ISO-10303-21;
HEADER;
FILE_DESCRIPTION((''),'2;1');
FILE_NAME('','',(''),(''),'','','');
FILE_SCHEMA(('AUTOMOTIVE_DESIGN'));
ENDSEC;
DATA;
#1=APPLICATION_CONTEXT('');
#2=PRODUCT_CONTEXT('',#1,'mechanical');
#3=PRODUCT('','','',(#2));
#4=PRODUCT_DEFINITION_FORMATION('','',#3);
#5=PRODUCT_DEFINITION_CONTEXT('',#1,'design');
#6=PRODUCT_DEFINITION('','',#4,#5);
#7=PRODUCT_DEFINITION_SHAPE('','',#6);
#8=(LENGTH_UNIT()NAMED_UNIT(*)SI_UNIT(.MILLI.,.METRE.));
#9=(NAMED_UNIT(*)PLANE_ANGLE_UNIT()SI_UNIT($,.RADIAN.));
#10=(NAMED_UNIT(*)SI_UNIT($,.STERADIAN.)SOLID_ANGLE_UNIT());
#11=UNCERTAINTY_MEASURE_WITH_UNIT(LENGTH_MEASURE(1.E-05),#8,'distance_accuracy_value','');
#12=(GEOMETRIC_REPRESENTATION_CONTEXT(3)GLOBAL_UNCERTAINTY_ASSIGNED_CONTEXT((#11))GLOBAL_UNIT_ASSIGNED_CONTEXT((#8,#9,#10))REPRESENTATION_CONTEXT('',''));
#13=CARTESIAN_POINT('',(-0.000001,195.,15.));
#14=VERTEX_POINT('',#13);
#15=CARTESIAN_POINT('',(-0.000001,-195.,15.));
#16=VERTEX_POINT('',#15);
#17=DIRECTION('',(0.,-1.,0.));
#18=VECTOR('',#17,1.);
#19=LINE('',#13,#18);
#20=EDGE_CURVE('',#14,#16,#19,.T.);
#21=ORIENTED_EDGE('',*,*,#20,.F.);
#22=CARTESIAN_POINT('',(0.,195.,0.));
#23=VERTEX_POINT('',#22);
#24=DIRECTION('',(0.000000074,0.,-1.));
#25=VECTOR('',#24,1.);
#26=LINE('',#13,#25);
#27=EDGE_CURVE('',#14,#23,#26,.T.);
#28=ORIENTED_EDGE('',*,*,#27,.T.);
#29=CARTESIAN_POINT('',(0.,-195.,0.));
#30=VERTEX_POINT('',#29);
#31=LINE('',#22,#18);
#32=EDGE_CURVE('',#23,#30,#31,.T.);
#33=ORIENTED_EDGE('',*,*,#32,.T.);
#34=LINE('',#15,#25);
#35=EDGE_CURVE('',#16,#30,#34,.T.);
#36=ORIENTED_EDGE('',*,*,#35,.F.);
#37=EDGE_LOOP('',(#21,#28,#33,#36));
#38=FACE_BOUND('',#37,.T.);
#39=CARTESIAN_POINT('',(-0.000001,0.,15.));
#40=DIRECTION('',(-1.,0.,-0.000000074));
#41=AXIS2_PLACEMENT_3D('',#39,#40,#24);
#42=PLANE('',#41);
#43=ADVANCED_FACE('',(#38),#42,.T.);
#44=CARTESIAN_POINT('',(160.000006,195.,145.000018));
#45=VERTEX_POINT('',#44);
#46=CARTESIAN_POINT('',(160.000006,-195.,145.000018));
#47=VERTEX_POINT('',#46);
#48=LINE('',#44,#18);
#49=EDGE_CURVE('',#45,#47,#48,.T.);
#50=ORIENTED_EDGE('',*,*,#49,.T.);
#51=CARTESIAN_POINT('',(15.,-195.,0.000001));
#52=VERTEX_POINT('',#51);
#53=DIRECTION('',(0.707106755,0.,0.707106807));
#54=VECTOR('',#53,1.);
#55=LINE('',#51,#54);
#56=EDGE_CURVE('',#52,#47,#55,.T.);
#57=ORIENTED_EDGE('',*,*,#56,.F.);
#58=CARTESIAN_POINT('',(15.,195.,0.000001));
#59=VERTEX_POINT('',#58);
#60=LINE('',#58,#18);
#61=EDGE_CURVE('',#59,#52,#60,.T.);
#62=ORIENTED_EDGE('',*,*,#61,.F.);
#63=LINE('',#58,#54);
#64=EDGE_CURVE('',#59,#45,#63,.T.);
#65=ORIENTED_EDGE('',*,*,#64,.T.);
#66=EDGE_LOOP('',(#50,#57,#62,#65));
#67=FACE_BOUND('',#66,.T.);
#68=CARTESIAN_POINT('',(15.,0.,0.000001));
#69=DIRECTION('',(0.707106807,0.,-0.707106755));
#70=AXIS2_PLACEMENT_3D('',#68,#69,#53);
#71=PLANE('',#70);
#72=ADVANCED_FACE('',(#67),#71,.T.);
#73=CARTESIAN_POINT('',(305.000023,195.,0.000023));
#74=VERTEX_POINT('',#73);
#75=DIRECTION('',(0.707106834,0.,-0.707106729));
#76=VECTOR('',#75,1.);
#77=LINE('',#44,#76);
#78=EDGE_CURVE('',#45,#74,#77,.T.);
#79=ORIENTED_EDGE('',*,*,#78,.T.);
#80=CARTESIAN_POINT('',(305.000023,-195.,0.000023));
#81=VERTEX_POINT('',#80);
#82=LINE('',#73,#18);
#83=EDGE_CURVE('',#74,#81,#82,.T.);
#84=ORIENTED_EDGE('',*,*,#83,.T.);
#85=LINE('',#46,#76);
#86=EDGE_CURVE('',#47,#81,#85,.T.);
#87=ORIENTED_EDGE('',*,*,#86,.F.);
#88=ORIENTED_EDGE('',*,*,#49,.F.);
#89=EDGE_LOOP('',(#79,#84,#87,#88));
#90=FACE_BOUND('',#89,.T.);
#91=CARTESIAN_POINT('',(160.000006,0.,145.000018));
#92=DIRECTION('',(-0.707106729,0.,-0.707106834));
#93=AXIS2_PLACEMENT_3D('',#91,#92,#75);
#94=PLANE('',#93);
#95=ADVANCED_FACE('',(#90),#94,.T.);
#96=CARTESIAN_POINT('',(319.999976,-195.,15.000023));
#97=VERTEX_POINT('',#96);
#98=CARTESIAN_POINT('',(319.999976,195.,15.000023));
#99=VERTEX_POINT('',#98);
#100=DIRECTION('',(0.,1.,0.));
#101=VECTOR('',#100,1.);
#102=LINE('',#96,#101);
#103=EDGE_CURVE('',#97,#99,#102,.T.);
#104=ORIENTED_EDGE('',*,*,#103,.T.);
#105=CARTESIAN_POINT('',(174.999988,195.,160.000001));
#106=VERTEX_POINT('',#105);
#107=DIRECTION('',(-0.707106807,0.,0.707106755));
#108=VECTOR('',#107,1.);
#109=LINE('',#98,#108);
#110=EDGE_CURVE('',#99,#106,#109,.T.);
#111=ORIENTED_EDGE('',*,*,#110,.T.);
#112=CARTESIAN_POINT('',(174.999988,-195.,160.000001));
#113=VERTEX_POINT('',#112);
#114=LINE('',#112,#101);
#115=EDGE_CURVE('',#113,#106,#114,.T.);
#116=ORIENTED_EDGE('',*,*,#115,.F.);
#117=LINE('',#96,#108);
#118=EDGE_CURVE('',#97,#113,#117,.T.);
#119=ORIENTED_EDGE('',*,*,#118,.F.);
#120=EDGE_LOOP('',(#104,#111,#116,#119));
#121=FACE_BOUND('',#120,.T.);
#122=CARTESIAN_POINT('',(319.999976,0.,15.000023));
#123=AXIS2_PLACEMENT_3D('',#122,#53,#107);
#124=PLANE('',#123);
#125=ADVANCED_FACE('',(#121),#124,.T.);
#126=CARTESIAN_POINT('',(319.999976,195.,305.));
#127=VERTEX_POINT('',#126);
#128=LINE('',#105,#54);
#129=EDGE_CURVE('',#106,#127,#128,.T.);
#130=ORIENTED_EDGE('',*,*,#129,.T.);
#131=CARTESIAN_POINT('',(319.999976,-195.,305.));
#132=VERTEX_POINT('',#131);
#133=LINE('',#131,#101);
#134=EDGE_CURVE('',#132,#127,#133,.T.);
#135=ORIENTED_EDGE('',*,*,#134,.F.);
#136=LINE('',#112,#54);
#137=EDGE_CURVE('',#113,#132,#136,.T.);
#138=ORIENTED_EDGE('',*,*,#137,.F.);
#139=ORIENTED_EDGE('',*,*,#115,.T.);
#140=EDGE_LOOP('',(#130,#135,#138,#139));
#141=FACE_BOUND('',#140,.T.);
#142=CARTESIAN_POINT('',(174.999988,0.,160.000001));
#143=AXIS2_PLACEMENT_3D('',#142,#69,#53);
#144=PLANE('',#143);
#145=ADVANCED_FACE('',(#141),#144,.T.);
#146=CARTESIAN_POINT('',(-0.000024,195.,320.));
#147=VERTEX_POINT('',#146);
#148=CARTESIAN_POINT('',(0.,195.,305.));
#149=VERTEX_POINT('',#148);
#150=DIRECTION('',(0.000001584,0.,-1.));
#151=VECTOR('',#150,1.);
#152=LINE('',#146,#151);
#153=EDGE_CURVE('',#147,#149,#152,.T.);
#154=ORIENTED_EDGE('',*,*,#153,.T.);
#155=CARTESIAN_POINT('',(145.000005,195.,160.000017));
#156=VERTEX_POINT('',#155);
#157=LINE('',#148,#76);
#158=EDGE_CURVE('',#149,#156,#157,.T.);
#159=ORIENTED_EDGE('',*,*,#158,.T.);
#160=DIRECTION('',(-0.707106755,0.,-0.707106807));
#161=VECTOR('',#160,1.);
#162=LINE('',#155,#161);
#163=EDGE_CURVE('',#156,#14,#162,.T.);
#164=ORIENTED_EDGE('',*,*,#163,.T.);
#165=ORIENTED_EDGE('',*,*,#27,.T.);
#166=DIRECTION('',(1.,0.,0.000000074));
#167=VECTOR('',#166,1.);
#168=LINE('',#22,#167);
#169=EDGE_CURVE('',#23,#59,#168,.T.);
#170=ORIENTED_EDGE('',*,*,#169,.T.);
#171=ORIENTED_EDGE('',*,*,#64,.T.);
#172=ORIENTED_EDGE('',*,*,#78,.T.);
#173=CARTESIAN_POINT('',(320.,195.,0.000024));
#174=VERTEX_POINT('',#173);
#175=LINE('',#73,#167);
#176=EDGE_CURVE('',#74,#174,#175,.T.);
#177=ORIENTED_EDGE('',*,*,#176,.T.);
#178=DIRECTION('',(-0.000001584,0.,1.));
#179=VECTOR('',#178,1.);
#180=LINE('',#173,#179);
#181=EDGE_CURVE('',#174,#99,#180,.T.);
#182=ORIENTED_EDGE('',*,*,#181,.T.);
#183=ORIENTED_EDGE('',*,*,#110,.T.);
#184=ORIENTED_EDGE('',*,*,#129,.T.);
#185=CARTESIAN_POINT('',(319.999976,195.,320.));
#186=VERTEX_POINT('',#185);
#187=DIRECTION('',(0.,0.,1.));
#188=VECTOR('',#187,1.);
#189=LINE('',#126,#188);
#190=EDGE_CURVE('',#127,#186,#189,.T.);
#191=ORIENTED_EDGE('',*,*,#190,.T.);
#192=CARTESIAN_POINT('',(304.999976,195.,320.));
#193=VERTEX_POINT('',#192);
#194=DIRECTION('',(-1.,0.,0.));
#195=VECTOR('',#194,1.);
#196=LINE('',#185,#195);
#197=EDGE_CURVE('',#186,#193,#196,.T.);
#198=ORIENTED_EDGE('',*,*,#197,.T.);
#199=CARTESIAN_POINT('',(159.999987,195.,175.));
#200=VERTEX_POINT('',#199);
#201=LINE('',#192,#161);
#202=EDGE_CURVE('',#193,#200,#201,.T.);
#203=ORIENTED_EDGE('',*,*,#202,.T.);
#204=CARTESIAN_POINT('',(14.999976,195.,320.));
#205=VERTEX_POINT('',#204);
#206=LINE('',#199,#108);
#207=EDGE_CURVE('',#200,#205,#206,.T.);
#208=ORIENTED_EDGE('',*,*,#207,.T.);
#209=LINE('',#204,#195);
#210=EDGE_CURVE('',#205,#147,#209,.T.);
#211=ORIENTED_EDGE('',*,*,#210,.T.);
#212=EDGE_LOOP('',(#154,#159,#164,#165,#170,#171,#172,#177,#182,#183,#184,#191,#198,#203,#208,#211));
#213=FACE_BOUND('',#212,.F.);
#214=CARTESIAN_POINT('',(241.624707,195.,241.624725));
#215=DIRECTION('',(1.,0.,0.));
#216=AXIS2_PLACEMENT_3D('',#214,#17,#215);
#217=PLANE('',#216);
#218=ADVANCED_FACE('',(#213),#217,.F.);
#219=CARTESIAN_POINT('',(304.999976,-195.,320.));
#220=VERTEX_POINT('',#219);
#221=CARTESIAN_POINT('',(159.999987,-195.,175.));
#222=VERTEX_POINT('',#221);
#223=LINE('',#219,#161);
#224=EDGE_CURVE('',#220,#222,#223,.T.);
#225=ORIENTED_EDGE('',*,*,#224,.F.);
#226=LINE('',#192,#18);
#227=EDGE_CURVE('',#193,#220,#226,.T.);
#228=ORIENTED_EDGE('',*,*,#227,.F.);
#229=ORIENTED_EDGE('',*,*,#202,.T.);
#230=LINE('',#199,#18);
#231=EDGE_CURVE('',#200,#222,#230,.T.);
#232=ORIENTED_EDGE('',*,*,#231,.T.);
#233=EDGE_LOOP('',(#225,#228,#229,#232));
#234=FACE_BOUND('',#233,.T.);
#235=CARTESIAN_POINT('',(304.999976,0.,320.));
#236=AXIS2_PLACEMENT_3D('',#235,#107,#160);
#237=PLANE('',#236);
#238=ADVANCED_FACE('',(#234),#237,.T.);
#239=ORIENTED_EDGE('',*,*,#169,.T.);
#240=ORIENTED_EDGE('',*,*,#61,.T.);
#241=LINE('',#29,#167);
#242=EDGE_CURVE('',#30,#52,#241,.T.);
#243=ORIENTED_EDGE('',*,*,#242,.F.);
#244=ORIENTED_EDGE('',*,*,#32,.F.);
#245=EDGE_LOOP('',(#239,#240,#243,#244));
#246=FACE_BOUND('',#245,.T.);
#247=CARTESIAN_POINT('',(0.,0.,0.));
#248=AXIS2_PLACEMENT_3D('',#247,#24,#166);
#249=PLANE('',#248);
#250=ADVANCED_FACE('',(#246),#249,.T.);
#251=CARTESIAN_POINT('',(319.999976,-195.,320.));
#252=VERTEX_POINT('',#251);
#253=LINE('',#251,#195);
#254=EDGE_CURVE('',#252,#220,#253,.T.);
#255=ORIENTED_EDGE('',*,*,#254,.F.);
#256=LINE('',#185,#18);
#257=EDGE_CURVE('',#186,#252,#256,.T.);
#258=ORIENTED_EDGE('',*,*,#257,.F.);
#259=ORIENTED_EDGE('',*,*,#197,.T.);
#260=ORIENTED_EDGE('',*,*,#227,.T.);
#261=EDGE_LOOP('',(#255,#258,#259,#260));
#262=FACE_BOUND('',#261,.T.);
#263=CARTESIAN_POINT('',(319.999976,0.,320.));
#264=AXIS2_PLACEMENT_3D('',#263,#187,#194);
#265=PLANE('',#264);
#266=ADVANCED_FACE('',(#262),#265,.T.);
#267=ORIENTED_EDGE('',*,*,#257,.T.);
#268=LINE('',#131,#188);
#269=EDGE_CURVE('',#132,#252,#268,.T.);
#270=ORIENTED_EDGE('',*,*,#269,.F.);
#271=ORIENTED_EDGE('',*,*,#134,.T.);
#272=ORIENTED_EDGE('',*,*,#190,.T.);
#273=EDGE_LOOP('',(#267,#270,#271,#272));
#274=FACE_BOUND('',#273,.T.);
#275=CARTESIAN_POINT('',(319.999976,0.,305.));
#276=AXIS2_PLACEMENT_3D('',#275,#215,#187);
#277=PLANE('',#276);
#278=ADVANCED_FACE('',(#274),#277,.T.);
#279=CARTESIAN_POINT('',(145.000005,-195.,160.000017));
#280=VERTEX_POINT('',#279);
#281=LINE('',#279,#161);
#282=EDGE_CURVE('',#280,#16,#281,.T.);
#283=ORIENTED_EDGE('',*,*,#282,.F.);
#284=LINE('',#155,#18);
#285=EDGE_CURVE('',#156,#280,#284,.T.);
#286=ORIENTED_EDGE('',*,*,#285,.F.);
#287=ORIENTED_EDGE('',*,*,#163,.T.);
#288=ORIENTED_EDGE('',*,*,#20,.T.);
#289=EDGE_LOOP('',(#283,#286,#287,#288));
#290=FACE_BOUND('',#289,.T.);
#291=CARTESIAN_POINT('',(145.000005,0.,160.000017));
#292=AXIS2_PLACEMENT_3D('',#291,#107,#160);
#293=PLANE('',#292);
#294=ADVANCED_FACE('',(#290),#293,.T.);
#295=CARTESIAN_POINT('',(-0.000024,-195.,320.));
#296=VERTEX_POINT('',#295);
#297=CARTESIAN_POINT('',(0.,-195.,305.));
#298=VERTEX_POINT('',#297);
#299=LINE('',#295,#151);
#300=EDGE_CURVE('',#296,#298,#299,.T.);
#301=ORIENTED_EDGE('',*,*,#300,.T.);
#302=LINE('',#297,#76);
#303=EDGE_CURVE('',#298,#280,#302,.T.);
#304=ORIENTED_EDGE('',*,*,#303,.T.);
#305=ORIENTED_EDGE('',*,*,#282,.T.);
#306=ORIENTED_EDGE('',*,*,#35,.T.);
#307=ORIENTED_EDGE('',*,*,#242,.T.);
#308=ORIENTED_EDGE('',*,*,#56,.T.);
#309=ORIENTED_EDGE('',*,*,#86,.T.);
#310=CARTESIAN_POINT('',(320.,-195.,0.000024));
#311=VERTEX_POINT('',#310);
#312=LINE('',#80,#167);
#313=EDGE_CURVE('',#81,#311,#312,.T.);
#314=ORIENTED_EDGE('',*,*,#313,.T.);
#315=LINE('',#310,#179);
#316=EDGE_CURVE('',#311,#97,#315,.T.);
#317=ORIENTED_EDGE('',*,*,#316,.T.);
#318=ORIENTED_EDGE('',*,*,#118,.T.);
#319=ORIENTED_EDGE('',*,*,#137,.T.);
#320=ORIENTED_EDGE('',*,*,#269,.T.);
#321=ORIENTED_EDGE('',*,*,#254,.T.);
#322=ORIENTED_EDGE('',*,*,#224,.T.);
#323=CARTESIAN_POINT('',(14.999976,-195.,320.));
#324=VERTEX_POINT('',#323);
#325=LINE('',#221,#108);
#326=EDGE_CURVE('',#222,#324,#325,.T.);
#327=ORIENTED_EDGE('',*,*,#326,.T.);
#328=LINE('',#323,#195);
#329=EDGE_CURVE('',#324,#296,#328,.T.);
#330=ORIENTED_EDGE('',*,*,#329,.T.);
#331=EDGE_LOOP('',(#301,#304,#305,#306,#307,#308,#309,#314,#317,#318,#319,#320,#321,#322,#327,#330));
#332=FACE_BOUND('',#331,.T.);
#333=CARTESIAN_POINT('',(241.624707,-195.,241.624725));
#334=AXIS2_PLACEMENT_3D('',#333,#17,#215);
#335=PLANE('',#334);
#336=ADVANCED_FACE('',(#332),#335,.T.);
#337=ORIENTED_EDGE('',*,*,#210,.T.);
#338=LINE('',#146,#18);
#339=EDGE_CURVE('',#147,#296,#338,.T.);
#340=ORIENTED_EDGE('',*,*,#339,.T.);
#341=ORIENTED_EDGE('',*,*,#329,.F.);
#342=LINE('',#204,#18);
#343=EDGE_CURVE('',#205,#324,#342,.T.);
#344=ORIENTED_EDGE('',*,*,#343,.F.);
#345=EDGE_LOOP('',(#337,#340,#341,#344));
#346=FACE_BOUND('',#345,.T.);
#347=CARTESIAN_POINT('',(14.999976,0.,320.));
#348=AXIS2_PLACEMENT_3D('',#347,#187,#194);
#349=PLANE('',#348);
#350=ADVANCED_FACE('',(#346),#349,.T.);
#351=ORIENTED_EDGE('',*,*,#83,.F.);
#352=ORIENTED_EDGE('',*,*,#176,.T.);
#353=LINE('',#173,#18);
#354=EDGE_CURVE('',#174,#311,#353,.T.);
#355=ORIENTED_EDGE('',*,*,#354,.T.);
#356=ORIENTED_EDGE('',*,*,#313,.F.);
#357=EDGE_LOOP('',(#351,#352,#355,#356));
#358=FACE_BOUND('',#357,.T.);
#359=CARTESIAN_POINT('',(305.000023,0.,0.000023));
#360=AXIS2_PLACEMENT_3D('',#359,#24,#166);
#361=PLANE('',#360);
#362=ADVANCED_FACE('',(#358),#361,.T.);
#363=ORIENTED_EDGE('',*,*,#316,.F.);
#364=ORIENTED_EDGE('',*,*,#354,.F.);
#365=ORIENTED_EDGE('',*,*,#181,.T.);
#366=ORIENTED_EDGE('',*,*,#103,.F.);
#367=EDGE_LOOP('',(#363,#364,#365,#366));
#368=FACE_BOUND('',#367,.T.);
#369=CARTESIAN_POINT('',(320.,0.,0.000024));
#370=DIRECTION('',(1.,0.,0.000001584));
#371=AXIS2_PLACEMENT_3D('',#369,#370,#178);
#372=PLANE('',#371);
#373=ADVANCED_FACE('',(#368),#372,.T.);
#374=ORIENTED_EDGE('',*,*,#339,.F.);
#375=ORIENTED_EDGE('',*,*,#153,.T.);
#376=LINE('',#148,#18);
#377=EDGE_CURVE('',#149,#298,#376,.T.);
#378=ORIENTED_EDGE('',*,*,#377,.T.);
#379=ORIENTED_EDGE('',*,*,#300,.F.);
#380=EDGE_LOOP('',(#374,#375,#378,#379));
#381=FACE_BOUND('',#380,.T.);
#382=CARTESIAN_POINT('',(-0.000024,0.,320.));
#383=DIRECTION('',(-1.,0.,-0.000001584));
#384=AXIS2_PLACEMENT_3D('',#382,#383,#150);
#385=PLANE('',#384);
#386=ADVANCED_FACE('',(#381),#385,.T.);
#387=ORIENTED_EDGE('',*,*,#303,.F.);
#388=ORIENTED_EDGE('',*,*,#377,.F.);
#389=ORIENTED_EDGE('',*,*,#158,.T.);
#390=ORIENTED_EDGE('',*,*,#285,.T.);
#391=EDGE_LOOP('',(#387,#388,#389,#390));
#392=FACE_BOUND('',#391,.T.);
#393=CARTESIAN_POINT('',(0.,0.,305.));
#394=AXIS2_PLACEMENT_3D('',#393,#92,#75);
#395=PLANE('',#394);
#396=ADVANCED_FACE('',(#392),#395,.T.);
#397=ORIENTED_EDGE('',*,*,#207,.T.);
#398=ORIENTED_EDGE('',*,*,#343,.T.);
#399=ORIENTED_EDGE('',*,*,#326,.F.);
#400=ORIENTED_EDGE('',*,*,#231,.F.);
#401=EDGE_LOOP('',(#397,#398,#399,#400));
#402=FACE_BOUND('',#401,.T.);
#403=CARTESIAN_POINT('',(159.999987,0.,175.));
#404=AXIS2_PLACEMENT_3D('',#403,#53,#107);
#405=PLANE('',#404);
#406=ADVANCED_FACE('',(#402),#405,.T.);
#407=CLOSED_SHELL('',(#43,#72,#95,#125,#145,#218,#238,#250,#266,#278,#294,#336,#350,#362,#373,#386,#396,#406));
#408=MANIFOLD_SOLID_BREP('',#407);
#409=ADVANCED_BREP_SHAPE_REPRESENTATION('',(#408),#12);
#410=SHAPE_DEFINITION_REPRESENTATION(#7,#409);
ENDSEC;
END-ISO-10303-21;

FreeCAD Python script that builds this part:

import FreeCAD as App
import Part
import Sketcher
Q = App.Units.Quantity


def add_polygon(sketch, points):
    """Adds a closed chain of lines whose ends are joined by coincident constraints."""
    first, n = sketch.GeometryCount, len(points)
    for a, b in zip(points, points[1:] + points[:1]):
        sketch.addGeometry(Part.LineSegment(App.Vector(*a, 0), App.Vector(*b, 0)), False)
    for i in range(n):
        sketch.addConstraint(Sketcher.Constraint("Coincident", first + i, 2, first + (i + 1) % n, 1))

doc = App.newDocument("Part")
params = doc.addObject("Spreadsheet::Sheet", "Params")
for row, (alias, value) in enumerate([
    ("sketch1_width", "15 mm"),
    ("sketch1_width2", "15 mm"),
    ("sketch1_width3", "15 mm"),
    ("sketch1_height", "15 mm"),
    ("sketch1_height2", "15 mm"),
    ("pad1_length", "390 mm"),
], start=1):
    params.set(f"A{row}", alias)
    params.set(f"B{row}", "=" + value)
    params.setAlias(f"B{row}", alias)

body = doc.addObject("PartDesign::Body", "Body")

sketch1 = body.newObject("Sketcher::SketchObject", "Sketch")
sketch1.AttachmentSupport = (doc.getObject("XZ_Plane"), [""])
sketch1.MapMode = "FlatFace"
add_polygon(sketch1, [(319.999976, 305), (319.999976, 320), (304.999976, 320), (159.999987, 175), (14.999976, 320), (-0.000024, 320), (0, 305), (145.000005, 160.000017), (-0.000001, 15), (0, 0), (15, 0.000001), (160.000006, 145.000018), (305.000023, 0.000023), (320, 0.000024), (319.999976, 15.000023), (174.999988, 160.000001)])
sketch1.addConstraint([
    Sketcher.Constraint("Vertical", 0),
    Sketcher.Constraint("Horizontal", 1),
    Sketcher.Constraint("Horizontal", 4),
    Sketcher.Constraint("Vertical", 8),
    Sketcher.Constraint("Horizontal", 9),
    Sketcher.Constraint("Horizontal", 12),
    Sketcher.Constraint("Coincident", 8, 2, -1, 1),
    Sketcher.Constraint("PointOnObject", 5, 2, -2),
    Sketcher.Constraint("DistanceX", 1, 2, 1, 1, Q("15 mm")),
    Sketcher.Constraint("DistanceX", 4, 2, 4, 1, Q("15 mm")),
    Sketcher.Constraint("DistanceX", 9, 1, 9, 2, Q("15 mm")),
    Sketcher.Constraint("DistanceY", 0, 1, 0, 2, Q("15 mm")),
    Sketcher.Constraint("DistanceY", 8, 2, 8, 1, Q("15 mm")),
    Sketcher.Constraint("Distance", 5, Q("15 mm")),
    Sketcher.Constraint("Distance", 13, Q("14.999999 mm")),
    Sketcher.Constraint("DistanceY", -1, 1, 0, 2, Q("320 mm")),
    Sketcher.Constraint("DistanceY", -1, 1, 2, 2, Q("175 mm")),
    Sketcher.Constraint("DistanceY", -1, 1, 3, 2, Q("320 mm")),
    Sketcher.Constraint("DistanceX", -1, 1, 12, 2, Q("320 mm")),
    Sketcher.Constraint("DistanceY", -1, 1, 14, 2, Q("160.000001 mm")),
    Sketcher.Constraint("DistanceX", 3, 2, 1, 2, Q("290 mm")),
    Sketcher.Constraint("DistanceX", 6, 2, 10, 2, Q("15.000001 mm")),
    Sketcher.Constraint("DistanceY", 10, 2, 6, 2, Q("14.999999 mm")),
    Sketcher.Constraint("DistanceX", 2, 2, 14, 2, Q("15.000001 mm")),
    Sketcher.Constraint("Distance", 2, Q("205.060959 mm")),
    Sketcher.Constraint("Distance", 6, Q("205.060958 mm")),
    Sketcher.Constraint("DistanceX", 12, 1, 12, 2, Q("14.999977 mm")),
    Sketcher.Constraint("DistanceX", 3, 2, 6, 2, Q("130.000029 mm")),
    Sketcher.Constraint("DistanceX", 7, 2, 2, 2, Q("159.999988 mm")),
    Sketcher.Constraint("DistanceX", 10, 2, 13, 2, Q("159.99997 mm")),
    Sketcher.Constraint("Distance", 11, Q("205.060975 mm")),
])
sketch1.setExpression("Constraints[24]", "Params.sketch1_width")
sketch1.setExpression("Constraints[25]", "Params.sketch1_width2")
sketch1.setExpression("Constraints[26]", "Params.sketch1_width3")
sketch1.setExpression("Constraints[27]", "Params.sketch1_height")
sketch1.setExpression("Constraints[28]", "Params.sketch1_height2")
pad1 = body.newObject("PartDesign::Pad", "Pad")
pad1.Profile = sketch1
pad1.setExpression("Length", "Params.pad1_length")
pad1.Midplane = True

doc.recompute()
